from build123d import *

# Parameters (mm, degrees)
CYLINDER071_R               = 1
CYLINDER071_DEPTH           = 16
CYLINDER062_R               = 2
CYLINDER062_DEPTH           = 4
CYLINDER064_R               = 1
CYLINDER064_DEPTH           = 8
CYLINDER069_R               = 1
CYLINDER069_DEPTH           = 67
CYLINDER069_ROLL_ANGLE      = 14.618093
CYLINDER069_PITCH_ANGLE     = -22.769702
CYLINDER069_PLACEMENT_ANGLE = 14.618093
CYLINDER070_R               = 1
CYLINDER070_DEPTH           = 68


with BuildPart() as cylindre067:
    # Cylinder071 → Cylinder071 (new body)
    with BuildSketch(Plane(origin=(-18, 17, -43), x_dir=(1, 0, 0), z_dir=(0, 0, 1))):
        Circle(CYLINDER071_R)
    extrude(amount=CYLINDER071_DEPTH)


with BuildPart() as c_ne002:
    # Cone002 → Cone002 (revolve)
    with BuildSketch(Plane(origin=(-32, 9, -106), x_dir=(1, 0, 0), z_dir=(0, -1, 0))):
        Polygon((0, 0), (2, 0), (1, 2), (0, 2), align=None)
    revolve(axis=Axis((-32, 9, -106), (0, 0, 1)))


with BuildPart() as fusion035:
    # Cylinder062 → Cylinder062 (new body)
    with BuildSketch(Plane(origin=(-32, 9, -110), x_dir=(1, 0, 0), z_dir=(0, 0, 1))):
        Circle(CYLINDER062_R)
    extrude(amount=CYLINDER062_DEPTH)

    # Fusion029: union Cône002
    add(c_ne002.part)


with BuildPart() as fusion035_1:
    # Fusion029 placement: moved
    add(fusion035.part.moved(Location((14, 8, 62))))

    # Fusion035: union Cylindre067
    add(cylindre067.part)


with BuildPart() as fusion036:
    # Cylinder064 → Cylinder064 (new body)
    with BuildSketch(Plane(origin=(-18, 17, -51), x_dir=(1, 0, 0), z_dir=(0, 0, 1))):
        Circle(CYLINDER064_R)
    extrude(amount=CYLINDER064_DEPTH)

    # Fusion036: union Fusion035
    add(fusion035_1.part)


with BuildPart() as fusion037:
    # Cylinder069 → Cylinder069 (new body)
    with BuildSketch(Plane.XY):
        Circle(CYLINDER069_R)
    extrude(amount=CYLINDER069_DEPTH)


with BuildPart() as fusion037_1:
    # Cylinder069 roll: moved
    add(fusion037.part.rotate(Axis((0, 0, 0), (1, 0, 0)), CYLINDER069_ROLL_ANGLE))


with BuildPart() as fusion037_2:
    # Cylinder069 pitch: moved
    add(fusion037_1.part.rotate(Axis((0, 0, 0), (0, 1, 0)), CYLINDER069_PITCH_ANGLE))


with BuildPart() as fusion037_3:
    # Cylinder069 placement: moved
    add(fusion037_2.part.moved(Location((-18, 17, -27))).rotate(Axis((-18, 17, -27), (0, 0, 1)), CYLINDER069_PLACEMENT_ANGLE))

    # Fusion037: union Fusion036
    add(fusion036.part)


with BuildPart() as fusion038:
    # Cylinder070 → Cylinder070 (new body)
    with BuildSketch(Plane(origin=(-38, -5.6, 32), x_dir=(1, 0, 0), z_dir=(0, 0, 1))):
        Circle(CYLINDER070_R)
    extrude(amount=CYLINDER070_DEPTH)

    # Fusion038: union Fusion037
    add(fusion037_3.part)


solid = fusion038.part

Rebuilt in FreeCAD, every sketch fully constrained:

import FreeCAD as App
import Part
import Sketcher
from FreeCAD import Vector


def add_polygon(sketch, points):
    """Adds a closed chain of lines whose ends are joined by coincident constraints."""
    first, n = sketch.GeometryCount, len(points)
    for a, b in zip(points, points[1:] + points[:1]):
        sketch.addGeometry(Part.LineSegment(App.Vector(*a, 0), App.Vector(*b, 0)), False)
    for i in range(n):
        sketch.addConstraint(Sketcher.Constraint("Coincident", first + i, 2, first + (i + 1) % n, 1))

doc = App.newDocument("Part")
body = doc.addObject("PartDesign::Body", "Body")

# Sketch on XY plane
sketch1 = doc.addObject("Sketcher::SketchObject", "Sketch")
body.addObject(sketch1)
sketch1.AttachmentSupport = (doc.XY_Plane, [""])
sketch1.MapMode = "FlatFace"
sketch1.AttachmentOffset = App.Placement(Vector(0, 0, -43), App.Rotation())
sketch1.addGeometry(Part.Circle(Vector(-18, 17, 0), Vector(0, 0, 1), 1), False)
sketch1.addConstraint(Sketcher.Constraint("Diameter", 0, 2.0))
sketch1.addConstraint(Sketcher.Constraint("DistanceX", 0, 3, -1, 1, 18.0))
sketch1.addConstraint(Sketcher.Constraint("DistanceY", -1, 1, 0, 3, 17.0))
pad1 = doc.addObject("PartDesign::Pad", "Pad")
body.addObject(pad1)
pad1.Profile = sketch1
pad1.Length = 16
body2 = doc.addObject("PartDesign::Body", "Body001")

# Sketch on XZ plane
sketch2 = doc.addObject("Sketcher::SketchObject", "Sketch001")
body2.addObject(sketch2)
sketch2.AttachmentSupport = (doc.getObject("XZ_Plane001"), [""])
sketch2.MapMode = "FlatFace"
sketch2.AttachmentOffset = App.Placement(Vector(0, 0, -9), App.Rotation())
add_polygon(sketch2, [(-32, -106), (-30, -106), (-31, -104), (-32, -104)])  # lines 0-3
sketch2.addGeometry(Part.LineSegment(Vector(-32, -106, 0), Vector(-32, -104, 0)), True)  # axis
sketch2.addConstraint(Sketcher.Constraint("Horizontal", 0))
sketch2.addConstraint(Sketcher.Constraint("Horizontal", 2))
sketch2.addConstraint(Sketcher.Constraint("Vertical", 3))
sketch2.addConstraint(Sketcher.Constraint("Vertical", 4))
sketch2.addConstraint(Sketcher.Constraint("Coincident", 4, 1, 3, 2))
sketch2.addConstraint(Sketcher.Constraint("Horizontal", 1, 2, 4, 2))
sketch2.addConstraint(Sketcher.Constraint("Equal", 0, 3))
sketch2.addConstraint(Sketcher.Constraint("DistanceX", 0, 1, 0, 2, 2.0))
sketch2.addConstraint(Sketcher.Constraint("DistanceX", 2, 2, 2, 1, 1.0))
sketch2.addConstraint(Sketcher.Constraint("DistanceX", 0, 2, -1, 1, 30.0))
sketch2.addConstraint(Sketcher.Constraint("DistanceY", 0, 2, -1, 1, 106.0))
revolution = doc.addObject("PartDesign::Revolution", "Revolution")
body2.addObject(revolution)
revolution.Profile = sketch2
revolution.ReferenceAxis = (sketch2, ["Axis0"])
revolution.Angle = 360
body3 = doc.addObject("PartDesign::Body", "Body002")

# Sketch on XY plane
sketch3 = doc.addObject("Sketcher::SketchObject", "Sketch002")
body3.addObject(sketch3)
sketch3.AttachmentSupport = (doc.getObject("XY_Plane002"), [""])
sketch3.MapMode = "FlatFace"
sketch3.AttachmentOffset = App.Placement(Vector(0, 0, -110), App.Rotation())
sketch3.addGeometry(Part.Circle(Vector(-32, 9, 0), Vector(0, 0, 1), 2), False)
sketch3.addConstraint(Sketcher.Constraint("Diameter", 0, 4.0))
sketch3.addConstraint(Sketcher.Constraint("DistanceX", 0, 3, -1, 1, 32.0))
sketch3.addConstraint(Sketcher.Constraint("DistanceY", -1, 1, 0, 3, 9.0))
pad2 = doc.addObject("PartDesign::Pad", "Pad001")
body3.addObject(pad2)
pad2.Profile = sketch3
pad2.Length = 4
doc.recompute()

boolean = doc.addObject("PartDesign::Boolean", "Boolean")
body3.addObject(boolean)
boolean.Type = "Fuse"
boolean.addObjects([body2])
body4 = doc.addObject("PartDesign::Body", "Body003")
doc.recompute()

body3.Placement = App.Placement(Vector(14, 8, 62), App.Rotation(Vector(0, 0, 1), 0))
boolean2 = doc.addObject("PartDesign::Boolean", "Boolean001")
body4.addObject(boolean2)
boolean2.Type = "Fuse"
boolean2.addObjects([body3])
doc.recompute()

boolean3 = doc.addObject("PartDesign::Boolean", "Boolean002")
body4.addObject(boolean3)
boolean3.Type = "Fuse"
boolean3.addObjects([body])
body5 = doc.addObject("PartDesign::Body", "Body004")

# Sketch on XY plane
sketch4 = doc.addObject("Sketcher::SketchObject", "Sketch003")
body5.addObject(sketch4)
sketch4.AttachmentSupport = (doc.getObject("XY_Plane004"), [""])
sketch4.MapMode = "FlatFace"
sketch4.AttachmentOffset = App.Placement(Vector(0, 0, -51), App.Rotation())
sketch4.addGeometry(Part.Circle(Vector(-18, 17, 0), Vector(0, 0, 1), 1), False)
sketch4.addConstraint(Sketcher.Constraint("Diameter", 0, 2.0))
sketch4.addConstraint(Sketcher.Constraint("DistanceX", 0, 3, -1, 1, 18.0))
sketch4.addConstraint(Sketcher.Constraint("DistanceY", -1, 1, 0, 3, 17.0))
pad3 = doc.addObject("PartDesign::Pad", "Pad002")
body5.addObject(pad3)
pad3.Profile = sketch4
pad3.Length = 8
doc.recompute()

boolean4 = doc.addObject("PartDesign::Boolean", "Boolean003")
body5.addObject(boolean4)
boolean4.Type = "Fuse"
boolean4.addObjects([body4])
body6 = doc.addObject("PartDesign::Body", "Body005")

# Sketch on XY plane
sketch5 = doc.addObject("Sketcher::SketchObject", "Sketch004")
body6.addObject(sketch5)
sketch5.AttachmentSupport = (doc.getObject("XY_Plane005"), [""])
sketch5.MapMode = "FlatFace"
sketch5.addGeometry(Part.Circle(Vector(0, 0, 0), Vector(0, 0, 1), 1), False)
sketch5.addConstraint(Sketcher.Constraint("Coincident", 0, 3, -1, 1))
sketch5.addConstraint(Sketcher.Constraint("Diameter", 0, 2.0))
pad4 = doc.addObject("PartDesign::Pad", "Pad003")
body6.addObject(pad4)
pad4.Profile = sketch5
pad4.Length = 67
body7 = doc.addObject("PartDesign::Body", "Body006")
doc.recompute()

body6.Placement = App.Placement(Vector(0, 0, 0), App.Rotation(Vector(1, 0, 0), 14.618093))
boolean5 = doc.addObject("PartDesign::Boolean", "Boolean004")
body7.addObject(boolean5)
boolean5.Type = "Fuse"
boolean5.addObjects([body6])
body8 = doc.addObject("PartDesign::Body", "Body007")
doc.recompute()

body7.Placement = App.Placement(Vector(0, 0, 0), App.Rotation(Vector(0, 1, 0), 337.230298))
boolean6 = doc.addObject("PartDesign::Boolean", "Boolean005")
body8.addObject(boolean6)
boolean6.Type = "Fuse"
boolean6.addObjects([body7])
body9 = doc.addObject("PartDesign::Body", "Body008")
doc.recompute()

body8.Placement = App.Placement(Vector(-18, 17, -27), App.Rotation(Vector(0, 0, 1), 14.618093))
boolean7 = doc.addObject("PartDesign::Boolean", "Boolean006")
body9.addObject(boolean7)
boolean7.Type = "Fuse"
boolean7.addObjects([body8])
doc.recompute()

boolean8 = doc.addObject("PartDesign::Boolean", "Boolean007")
body9.addObject(boolean8)
boolean8.Type = "Fuse"
boolean8.addObjects([body5])
body10 = doc.addObject("PartDesign::Body", "Body009")

# Sketch on XY plane
sketch6 = doc.addObject("Sketcher::SketchObject", "Sketch005")
body10.addObject(sketch6)
sketch6.AttachmentSupport = (doc.getObject("XY_Plane009"), [""])
sketch6.MapMode = "FlatFace"
sketch6.AttachmentOffset = App.Placement(Vector(0, 0, 32), App.Rotation())
sketch6.addGeometry(Part.Circle(Vector(-38, -5.6, 0), Vector(0, 0, 1), 1), False)
sketch6.addConstraint(Sketcher.Constraint("Diameter", 0, 2.0))
sketch6.addConstraint(Sketcher.Constraint("DistanceX", 0, 3, -1, 1, 38.0))
sketch6.addConstraint(Sketcher.Constraint("DistanceY", 0, 3, -1, 1, 5.6))
pad5 = doc.addObject("PartDesign::Pad", "Pad004")
body10.addObject(pad5)
pad5.Profile = sketch6
pad5.Length = 68
doc.recompute()

boolean9 = doc.addObject("PartDesign::Boolean", "Boolean008")
body10.addObject(boolean9)
boolean9.Type = "Fuse"
boolean9.addObjects([body9])

doc.recompute()
